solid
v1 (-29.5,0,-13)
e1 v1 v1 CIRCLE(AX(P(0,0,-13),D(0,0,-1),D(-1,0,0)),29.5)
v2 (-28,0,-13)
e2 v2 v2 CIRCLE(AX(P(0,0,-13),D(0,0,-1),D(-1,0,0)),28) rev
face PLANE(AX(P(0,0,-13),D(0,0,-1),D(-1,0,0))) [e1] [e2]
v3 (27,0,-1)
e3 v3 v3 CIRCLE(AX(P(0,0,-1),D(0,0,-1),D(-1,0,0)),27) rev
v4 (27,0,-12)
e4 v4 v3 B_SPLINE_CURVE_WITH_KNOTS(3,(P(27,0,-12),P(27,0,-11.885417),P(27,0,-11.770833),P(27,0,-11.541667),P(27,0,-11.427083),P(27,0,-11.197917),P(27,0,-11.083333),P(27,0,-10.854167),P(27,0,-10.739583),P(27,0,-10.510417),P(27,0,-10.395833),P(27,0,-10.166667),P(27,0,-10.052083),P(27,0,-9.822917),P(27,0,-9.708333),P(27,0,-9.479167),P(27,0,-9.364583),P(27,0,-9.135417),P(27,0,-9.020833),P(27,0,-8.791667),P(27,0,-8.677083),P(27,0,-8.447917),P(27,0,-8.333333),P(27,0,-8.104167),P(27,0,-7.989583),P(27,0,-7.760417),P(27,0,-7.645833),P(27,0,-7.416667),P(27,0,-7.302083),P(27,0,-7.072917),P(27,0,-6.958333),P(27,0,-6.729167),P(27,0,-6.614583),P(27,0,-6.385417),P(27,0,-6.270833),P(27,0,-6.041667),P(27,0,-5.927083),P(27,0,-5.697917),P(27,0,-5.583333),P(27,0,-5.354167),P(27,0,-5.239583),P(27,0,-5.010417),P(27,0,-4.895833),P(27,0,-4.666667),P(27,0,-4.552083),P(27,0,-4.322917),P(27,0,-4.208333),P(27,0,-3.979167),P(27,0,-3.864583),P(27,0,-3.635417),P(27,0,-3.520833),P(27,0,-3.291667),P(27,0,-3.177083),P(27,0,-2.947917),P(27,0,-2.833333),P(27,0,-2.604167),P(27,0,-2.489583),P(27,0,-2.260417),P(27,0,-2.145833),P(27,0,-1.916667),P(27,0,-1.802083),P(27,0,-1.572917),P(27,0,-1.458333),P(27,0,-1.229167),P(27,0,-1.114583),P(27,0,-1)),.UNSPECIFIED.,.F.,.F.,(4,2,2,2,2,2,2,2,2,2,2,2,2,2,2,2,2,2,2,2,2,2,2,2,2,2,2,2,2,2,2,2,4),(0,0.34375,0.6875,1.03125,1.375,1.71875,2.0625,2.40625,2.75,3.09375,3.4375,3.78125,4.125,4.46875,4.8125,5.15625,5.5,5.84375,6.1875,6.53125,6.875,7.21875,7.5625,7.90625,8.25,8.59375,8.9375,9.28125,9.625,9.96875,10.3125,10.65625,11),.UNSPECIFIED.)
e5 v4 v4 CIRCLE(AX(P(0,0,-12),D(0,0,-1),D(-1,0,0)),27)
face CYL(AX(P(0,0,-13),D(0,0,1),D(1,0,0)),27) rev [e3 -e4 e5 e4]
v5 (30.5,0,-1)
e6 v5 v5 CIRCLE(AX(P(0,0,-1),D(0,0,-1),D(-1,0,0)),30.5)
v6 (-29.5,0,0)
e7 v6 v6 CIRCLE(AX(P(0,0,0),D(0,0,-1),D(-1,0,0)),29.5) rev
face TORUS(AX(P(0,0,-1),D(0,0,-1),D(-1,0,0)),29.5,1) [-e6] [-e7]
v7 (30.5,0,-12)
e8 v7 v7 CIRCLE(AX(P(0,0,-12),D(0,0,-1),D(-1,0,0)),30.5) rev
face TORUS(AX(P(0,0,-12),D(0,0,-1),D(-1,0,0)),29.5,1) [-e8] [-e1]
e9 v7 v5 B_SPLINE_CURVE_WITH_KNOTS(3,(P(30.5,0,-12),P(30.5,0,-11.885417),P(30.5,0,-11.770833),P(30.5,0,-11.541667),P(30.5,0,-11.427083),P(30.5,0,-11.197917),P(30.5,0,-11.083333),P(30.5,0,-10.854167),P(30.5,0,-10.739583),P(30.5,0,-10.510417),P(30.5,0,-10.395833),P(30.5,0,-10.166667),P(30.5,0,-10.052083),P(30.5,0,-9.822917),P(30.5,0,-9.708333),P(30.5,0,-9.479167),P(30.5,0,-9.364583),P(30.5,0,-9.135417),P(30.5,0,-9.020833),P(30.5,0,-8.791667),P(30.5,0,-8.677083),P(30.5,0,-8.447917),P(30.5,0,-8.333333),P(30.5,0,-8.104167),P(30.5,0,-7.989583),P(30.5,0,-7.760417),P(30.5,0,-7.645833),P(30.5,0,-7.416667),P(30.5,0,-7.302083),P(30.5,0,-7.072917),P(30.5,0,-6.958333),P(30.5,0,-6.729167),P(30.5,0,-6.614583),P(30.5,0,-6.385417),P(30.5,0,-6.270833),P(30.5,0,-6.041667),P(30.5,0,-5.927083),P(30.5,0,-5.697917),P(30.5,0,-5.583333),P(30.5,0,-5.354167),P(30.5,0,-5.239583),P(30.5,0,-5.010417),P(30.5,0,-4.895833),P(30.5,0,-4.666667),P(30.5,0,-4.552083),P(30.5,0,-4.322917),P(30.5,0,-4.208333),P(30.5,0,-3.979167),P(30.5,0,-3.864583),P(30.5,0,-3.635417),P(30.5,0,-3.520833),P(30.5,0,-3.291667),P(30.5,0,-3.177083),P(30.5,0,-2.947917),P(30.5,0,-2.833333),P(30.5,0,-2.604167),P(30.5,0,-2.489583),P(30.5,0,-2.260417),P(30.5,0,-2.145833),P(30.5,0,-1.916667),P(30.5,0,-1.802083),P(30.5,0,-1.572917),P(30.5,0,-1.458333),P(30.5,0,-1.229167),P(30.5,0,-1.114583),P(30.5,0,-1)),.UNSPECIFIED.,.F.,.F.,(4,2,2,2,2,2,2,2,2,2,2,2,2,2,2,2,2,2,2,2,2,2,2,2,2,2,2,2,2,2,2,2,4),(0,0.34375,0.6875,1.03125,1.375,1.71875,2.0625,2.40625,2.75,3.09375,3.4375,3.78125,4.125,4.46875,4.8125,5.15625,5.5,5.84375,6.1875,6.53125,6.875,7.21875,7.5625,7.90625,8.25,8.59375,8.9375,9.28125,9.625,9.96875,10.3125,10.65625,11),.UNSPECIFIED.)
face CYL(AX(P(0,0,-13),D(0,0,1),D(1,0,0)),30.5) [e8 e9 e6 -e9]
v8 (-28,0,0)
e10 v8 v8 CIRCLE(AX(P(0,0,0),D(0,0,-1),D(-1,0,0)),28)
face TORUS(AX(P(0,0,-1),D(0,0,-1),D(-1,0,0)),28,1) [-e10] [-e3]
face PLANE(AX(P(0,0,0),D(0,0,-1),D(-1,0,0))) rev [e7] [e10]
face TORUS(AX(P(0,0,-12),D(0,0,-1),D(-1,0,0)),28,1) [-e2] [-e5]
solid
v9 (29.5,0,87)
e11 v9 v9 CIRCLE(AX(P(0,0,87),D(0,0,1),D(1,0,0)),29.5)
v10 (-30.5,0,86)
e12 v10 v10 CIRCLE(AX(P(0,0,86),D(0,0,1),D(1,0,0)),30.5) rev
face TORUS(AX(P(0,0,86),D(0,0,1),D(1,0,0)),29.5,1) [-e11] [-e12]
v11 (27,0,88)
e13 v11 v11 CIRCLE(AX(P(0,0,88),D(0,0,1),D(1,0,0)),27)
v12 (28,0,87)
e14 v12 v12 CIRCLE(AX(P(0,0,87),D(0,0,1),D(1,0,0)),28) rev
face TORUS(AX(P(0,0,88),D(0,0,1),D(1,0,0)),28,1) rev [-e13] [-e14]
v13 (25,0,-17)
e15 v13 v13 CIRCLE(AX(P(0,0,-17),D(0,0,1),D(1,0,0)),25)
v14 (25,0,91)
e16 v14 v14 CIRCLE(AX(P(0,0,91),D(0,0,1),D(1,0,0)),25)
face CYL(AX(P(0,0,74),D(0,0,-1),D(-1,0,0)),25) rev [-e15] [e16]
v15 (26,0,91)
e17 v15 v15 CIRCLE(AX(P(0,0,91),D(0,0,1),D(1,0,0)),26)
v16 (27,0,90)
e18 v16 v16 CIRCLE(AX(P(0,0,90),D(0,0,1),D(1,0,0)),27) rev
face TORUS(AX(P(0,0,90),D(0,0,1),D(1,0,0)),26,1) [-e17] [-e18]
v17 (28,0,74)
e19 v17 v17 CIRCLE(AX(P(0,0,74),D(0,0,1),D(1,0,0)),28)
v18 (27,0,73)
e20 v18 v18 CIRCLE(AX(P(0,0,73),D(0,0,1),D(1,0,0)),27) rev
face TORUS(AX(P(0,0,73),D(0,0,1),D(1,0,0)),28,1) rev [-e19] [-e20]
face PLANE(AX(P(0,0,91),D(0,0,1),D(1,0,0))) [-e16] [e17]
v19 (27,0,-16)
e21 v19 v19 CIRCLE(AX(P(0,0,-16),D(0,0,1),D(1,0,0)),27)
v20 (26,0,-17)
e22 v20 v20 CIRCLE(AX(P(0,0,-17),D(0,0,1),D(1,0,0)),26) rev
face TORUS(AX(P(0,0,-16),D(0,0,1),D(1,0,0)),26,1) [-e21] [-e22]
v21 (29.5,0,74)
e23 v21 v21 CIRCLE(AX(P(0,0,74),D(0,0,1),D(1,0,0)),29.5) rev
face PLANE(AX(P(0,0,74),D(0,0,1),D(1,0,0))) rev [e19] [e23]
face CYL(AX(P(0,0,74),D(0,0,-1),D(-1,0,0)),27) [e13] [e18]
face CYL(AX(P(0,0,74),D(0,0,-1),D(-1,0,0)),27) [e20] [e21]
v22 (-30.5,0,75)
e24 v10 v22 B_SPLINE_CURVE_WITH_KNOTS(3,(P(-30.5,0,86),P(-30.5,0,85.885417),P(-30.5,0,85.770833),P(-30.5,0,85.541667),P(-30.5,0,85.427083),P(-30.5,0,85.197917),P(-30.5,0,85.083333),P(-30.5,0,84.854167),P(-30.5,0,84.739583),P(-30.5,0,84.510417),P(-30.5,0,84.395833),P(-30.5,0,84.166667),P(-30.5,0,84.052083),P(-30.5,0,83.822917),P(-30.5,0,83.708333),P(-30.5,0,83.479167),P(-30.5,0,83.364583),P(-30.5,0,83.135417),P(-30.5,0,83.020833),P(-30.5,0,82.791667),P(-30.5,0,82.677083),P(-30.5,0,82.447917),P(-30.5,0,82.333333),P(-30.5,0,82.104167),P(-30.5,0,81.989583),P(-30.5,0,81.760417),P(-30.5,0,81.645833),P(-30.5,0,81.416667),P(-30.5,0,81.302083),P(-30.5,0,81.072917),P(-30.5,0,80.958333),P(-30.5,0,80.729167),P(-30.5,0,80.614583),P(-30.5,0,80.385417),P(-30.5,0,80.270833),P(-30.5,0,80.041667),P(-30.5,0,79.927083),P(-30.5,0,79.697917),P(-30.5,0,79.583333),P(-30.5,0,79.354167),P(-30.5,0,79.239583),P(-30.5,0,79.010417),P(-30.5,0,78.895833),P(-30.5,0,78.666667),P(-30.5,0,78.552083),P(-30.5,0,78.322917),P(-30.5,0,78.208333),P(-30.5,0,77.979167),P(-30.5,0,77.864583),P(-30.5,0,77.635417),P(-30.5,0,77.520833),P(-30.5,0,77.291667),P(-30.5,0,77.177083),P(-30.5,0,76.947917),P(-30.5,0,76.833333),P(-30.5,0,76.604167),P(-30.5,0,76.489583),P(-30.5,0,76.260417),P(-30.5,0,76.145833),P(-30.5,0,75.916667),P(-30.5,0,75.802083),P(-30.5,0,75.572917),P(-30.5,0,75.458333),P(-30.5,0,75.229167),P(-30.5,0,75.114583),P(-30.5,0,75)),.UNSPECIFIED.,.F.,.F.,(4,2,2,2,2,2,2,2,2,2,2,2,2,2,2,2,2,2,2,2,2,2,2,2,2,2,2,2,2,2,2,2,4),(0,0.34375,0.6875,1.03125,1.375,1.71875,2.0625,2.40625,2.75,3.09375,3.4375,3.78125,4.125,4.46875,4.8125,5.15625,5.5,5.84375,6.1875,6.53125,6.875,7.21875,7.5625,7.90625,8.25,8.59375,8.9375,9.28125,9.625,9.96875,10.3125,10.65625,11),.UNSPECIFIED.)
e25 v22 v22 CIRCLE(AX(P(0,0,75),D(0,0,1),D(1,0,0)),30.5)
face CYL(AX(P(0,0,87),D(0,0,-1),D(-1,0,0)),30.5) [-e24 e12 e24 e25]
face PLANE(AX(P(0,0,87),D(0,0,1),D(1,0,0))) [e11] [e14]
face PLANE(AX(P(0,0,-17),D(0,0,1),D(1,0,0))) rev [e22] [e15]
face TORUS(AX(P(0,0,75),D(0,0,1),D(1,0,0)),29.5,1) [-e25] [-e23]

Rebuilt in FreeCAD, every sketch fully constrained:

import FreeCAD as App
import Part
import Sketcher

V = App.Vector
Q = App.Units.Quantity


def edges_at(feature, points):
    """Names of the edges that pass closest to the given points."""
    edges = feature.Shape.Edges
    near = lambda p: min(range(len(edges)), key=lambda i: edges[i].distToShape(Part.Vertex(*p))[0])
    return sorted({f"Edge{near(p) + 1}" for p in points})

doc = App.newDocument("Part")
body = doc.addObject("PartDesign::Body", "Body")

sketch1 = body.newObject("Sketcher::SketchObject", "Sketch")
sketch1.AttachmentSupport = (doc.getObject("XY_Plane"), [""])
sketch1.MapMode = "FlatFace"
sketch1.addGeometry([
    Part.Circle(V(0, 0, 0), V(0, 0, 1), 27),
    Part.Circle(V(0, 0, 0), V(0, 0, 1), 25),
], False)
sketch1.addConstraint([
    Sketcher.Constraint("Coincident", 0, 3, -1, 1),
    Sketcher.Constraint("Coincident", 1, 3, -1, 1),
    Sketcher.Constraint("Diameter", 0, Q("54 mm")),
    Sketcher.Constraint("Diameter", 1, Q("50 mm")),
])
pad1 = body.newObject("PartDesign::Pad", "Pad")
pad1.Profile = sketch1
pad1.Length = 74
body2 = doc.addObject("PartDesign::Body", "Body001")

sketch2 = body2.newObject("Sketcher::SketchObject", "Sketch001")
sketch2.AttachmentSupport = (doc.getObject("XY_Plane001"), [""])
sketch2.MapMode = "FlatFace"
sketch2.addGeometry([
    Part.Circle(V(0, 0, 0), V(0, 0, 1), 30.5),
    Part.Circle(V(0, 0, 0), V(0, 0, 1), 27),
], False)
sketch2.addConstraint([
    Sketcher.Constraint("Coincident", 0, 3, -1, 1),
    Sketcher.Constraint("Coincident", 1, 3, -1, 1),
    Sketcher.Constraint("Diameter", 0, Q("61 mm")),
    Sketcher.Constraint("Diameter", 1, Q("54 mm")),
])
pad2 = body2.newObject("PartDesign::Pad", "Pad001")
pad2.Profile = sketch2
pad2.Length = 13
pad2.Reversed = True
doc.recompute()

fillet = body2.newObject("PartDesign::Fillet", "Fillet")
fillet.Base = (pad2, edges_at(pad2, [
    (-30.5, 0, 0),
    (-30.5, 0, -13),
    (-27, 0, 0),
    (-27, 0, -13),
]))
fillet.Radius = 1
body3 = doc.addObject("PartDesign::Body", "Body002")

sketch3 = body3.newObject("Sketcher::SketchObject", "Sketch002")
sketch3.AttachmentSupport = (doc.getObject("XY_Plane002"), [""])
sketch3.MapMode = "FlatFace"
sketch3.AttachmentOffset = App.Placement(V(0, 0, 74), App.Rotation())
sketch3.addGeometry([
    Part.Circle(V(0, 0, 0), V(0, 0, 1), 30.5),
    Part.Circle(V(0, 0, 0), V(0, 0, 1), 27),
], False)
sketch3.addConstraint([
    Sketcher.Constraint("Coincident", 0, 3, -1, 1),
    Sketcher.Constraint("Coincident", 1, 3, -1, 1),
    Sketcher.Constraint("Diameter", 0, Q("61 mm")),
    Sketcher.Constraint("Diameter", 1, Q("54 mm")),
])
pad3 = body3.newObject("PartDesign::Pad", "Pad002")
pad3.Profile = sketch3
pad3.Length = 13
body.AllowCompound = True
doc.recompute()

boolean = body.newObject("PartDesign::Boolean", "Boolean")
boolean.Type = "Fuse"
boolean.addObjects([body3])

sketch4 = body.newObject("Sketcher::SketchObject", "Sketch003")
sketch4.AttachmentSupport = (doc.getObject("XY_Plane"), [""])
sketch4.MapMode = "FlatFace"
sketch4.AttachmentOffset = App.Placement(V(0, 0, 74), App.Rotation())
sketch4.addGeometry([
    Part.Circle(V(0, 0, 0), V(0, 0, 1), 27),
    Part.Circle(V(0, 0, 0), V(0, 0, 1), 25),
], False)
sketch4.addConstraint([
    Sketcher.Constraint("Coincident", 0, 3, -1, 1),
    Sketcher.Constraint("Coincident", 1, 3, -1, 1),
    Sketcher.Constraint("Diameter", 0, Q("54 mm")),
    Sketcher.Constraint("Diameter", 1, Q("50 mm")),
])
pad4 = body.newObject("PartDesign::Pad", "Pad003")
pad4.Profile = sketch4
pad4.Type = "TwoLengths"
pad4.Length = 17
pad4.Length2 = 91
doc.recompute()

fillet2 = body.newObject("PartDesign::Fillet", "Fillet001")
fillet2.Base = (pad4, edges_at(pad4, [
    (-27, 0, 74),
    (-30.5, 0, 87),
    (-30.5, 0, 74),
    (-27, 0, 87),
]))
fillet2.Radius = 1
doc.recompute()

fillet3 = body.newObject("PartDesign::Fillet", "Fillet002")
fillet3.Base = (fillet2, edges_at(fillet2, [(-27, 0, -17), (-27, 0, 91)]))
fillet3.Radius = 1

doc.recompute()
